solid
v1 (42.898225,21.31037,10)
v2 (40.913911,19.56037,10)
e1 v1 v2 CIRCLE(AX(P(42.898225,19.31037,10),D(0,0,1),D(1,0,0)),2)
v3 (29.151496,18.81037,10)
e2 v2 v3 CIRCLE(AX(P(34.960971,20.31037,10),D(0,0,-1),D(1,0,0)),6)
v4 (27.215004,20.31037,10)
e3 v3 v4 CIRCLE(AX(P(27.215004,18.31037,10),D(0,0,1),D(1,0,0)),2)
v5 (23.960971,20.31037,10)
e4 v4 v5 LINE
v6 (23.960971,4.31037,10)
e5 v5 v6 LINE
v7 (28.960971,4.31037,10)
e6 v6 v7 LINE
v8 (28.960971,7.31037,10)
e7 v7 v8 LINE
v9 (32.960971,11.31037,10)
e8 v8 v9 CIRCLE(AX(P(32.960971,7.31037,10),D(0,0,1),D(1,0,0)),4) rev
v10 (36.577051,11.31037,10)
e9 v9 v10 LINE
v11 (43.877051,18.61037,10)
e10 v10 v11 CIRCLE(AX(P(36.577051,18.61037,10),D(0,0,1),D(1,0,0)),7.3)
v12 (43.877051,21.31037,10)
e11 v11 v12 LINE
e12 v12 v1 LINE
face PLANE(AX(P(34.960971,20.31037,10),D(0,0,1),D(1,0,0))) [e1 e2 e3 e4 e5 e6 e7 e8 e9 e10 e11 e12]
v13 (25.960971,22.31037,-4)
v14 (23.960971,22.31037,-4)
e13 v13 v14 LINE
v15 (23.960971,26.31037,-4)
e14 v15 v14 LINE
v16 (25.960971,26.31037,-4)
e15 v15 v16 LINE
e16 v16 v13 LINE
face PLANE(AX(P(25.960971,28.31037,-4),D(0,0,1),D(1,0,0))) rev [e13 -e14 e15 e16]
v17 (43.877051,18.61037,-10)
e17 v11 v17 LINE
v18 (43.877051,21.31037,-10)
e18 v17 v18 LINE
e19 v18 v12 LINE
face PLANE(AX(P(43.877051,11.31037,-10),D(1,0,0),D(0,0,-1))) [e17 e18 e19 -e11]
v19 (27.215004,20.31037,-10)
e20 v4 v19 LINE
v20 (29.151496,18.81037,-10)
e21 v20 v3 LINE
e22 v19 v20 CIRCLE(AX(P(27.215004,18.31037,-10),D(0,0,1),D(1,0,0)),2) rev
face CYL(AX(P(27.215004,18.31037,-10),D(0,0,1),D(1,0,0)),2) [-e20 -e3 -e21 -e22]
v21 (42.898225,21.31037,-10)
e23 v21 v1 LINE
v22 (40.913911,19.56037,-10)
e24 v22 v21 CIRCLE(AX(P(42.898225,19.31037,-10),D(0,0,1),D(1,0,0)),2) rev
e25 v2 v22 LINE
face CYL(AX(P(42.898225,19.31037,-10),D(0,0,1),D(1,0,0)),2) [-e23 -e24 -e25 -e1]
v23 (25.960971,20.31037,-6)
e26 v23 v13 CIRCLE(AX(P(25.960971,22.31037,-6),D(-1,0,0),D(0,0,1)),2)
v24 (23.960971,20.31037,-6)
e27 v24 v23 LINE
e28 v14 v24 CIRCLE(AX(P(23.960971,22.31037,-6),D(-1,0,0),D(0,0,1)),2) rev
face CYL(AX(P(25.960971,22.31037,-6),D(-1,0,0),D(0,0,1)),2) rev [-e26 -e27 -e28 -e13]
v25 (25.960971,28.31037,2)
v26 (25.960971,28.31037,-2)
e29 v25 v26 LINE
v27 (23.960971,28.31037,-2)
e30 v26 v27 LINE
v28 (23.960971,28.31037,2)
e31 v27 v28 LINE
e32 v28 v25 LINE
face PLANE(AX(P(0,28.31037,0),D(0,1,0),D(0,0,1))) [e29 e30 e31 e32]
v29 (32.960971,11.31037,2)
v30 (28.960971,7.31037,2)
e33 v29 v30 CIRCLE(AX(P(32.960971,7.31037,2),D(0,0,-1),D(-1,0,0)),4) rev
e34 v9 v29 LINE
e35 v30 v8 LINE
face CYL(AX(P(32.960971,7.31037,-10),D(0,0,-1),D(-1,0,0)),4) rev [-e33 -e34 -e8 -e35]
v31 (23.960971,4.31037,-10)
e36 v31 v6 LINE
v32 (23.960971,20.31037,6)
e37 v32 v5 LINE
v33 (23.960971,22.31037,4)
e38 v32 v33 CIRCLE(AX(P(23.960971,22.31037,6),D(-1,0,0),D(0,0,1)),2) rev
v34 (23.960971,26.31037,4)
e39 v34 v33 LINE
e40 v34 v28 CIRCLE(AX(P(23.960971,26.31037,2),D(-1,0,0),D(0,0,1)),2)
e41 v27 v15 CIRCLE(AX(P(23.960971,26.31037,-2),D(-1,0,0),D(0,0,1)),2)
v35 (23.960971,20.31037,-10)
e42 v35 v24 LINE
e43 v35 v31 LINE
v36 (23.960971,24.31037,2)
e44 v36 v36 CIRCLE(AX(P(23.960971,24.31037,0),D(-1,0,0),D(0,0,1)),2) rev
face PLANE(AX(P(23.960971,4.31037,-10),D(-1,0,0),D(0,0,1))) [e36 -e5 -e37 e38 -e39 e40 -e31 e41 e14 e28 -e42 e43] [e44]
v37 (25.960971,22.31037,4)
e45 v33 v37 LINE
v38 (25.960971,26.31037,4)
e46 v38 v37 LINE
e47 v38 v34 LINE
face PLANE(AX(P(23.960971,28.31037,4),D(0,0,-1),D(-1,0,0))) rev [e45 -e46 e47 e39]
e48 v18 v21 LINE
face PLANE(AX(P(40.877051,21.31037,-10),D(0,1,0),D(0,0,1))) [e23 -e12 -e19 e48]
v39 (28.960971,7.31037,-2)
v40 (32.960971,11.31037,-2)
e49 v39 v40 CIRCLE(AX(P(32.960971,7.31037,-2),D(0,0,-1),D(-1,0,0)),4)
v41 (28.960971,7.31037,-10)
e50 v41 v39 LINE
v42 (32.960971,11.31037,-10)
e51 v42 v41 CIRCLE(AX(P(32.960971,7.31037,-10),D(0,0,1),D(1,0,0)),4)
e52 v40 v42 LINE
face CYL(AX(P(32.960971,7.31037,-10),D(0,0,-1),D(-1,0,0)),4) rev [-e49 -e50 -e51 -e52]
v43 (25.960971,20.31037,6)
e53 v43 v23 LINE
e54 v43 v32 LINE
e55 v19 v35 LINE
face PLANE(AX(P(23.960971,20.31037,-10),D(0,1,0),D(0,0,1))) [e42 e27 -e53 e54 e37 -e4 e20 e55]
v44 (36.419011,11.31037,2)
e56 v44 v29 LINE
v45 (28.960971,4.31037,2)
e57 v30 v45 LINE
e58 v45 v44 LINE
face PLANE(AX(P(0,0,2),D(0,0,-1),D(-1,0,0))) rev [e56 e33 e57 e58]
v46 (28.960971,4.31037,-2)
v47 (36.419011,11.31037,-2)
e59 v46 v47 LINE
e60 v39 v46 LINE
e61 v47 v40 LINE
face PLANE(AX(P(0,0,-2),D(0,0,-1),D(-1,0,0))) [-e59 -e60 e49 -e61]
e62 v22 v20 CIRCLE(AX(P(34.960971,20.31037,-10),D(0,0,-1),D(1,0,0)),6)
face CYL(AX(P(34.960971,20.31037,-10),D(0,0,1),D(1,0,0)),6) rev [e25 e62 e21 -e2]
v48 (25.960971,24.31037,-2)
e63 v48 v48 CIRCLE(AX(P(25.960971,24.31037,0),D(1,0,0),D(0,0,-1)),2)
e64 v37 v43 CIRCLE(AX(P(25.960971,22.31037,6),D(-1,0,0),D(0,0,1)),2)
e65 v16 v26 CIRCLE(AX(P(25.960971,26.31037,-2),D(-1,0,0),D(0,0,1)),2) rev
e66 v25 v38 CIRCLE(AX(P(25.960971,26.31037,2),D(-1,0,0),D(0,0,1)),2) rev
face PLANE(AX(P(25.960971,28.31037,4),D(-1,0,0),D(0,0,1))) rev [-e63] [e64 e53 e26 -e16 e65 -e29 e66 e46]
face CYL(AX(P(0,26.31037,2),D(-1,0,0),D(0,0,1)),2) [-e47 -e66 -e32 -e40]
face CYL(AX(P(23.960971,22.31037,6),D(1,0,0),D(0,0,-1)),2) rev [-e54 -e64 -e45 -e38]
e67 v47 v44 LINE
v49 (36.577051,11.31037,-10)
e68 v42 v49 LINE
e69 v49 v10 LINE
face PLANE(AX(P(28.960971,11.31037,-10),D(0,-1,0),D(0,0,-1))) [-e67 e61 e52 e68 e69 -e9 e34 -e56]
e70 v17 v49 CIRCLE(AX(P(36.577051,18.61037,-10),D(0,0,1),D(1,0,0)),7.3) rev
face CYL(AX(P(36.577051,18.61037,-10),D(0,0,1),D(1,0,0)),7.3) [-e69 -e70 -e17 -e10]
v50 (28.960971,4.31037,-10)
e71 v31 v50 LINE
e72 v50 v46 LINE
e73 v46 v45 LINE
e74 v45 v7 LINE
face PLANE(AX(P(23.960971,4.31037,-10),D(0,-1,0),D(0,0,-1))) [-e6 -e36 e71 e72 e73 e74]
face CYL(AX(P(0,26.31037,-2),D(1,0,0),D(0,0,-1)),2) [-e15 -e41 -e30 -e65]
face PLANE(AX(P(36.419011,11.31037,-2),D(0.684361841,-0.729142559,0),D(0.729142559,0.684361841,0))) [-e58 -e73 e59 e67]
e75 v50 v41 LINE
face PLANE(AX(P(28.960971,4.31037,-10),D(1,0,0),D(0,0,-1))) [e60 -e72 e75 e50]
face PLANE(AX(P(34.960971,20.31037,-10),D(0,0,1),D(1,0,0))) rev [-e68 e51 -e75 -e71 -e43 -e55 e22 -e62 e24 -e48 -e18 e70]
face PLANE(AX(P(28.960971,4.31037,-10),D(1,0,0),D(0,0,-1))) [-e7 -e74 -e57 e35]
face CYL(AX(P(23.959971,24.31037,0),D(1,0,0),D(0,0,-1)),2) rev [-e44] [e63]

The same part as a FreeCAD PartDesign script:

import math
import FreeCAD as App
import Part
import Sketcher
from FreeCAD import Vector
Q = App.Units.Quantity


def edges_at(feature, points):
    """Names of the edges that pass closest to the given points."""
    edges = feature.Shape.Edges
    near = lambda p: min(range(len(edges)), key=lambda i: edges[i].distToShape(Part.Vertex(*p))[0])
    return sorted({f"Edge{near(p) + 1}" for p in points})

doc = App.newDocument("Part")
body = doc.addObject("PartDesign::Body", "Body")

sketch1 = doc.addObject("Sketcher::SketchObject", "Sketch")
body.addObject(sketch1)
sketch1.AttachmentSupport = (doc.XY_Plane, [""])
sketch1.MapMode = "FlatFace"
sketch1.addGeometry(Part.LineSegment(Vector(24, 20.3, 0), Vector(24, 4.3, 0)), False)
sketch1.addGeometry(Part.LineSegment(Vector(24, 4.3, 0), Vector(29, 4.3, 0)), False)
sketch1.addGeometry(Part.LineSegment(Vector(29, 4.3, 0), Vector(29, 11.3, 0)), False)
sketch1.addGeometry(Part.LineSegment(Vector(29, 11.3, 0), Vector(43.9, 11.3, 0)), False)
sketch1.addGeometry(Part.LineSegment(Vector(43.9, 11.3, 0), Vector(43.9, 21.3, 0)), False)
sketch1.addGeometry(Part.LineSegment(Vector(43.9, 21.3, 0), Vector(40.9, 21.3, 0)), False)
sketch1.addGeometry(Part.ArcOfCircle(Part.Circle(Vector(35, 20.3, 0), Vector(0, 0, 1), 6), math.radians(-180), math.radians(10)), False)
sketch1.addGeometry(Part.LineSegment(Vector(29, 20.3, 0), Vector(24, 20.3, 0)), False)
sketch1.addConstraint(Sketcher.Constraint("Coincident", 0, 2, 1, 1))
sketch1.addConstraint(Sketcher.Constraint("Coincident", 1, 2, 2, 1))
sketch1.addConstraint(Sketcher.Constraint("Coincident", 2, 2, 3, 1))
sketch1.addConstraint(Sketcher.Constraint("Coincident", 3, 2, 4, 1))
sketch1.addConstraint(Sketcher.Constraint("Coincident", 4, 2, 5, 1))
sketch1.addConstraint(Sketcher.Constraint("Coincident", 5, 2, 6, 2))
sketch1.addConstraint(Sketcher.Constraint("Coincident", 6, 1, 7, 1))
sketch1.addConstraint(Sketcher.Constraint("Coincident", 7, 2, 0, 1))
sketch1.addConstraint(Sketcher.Constraint("Vertical", 0))
sketch1.addConstraint(Sketcher.Constraint("Horizontal", 1))
sketch1.addConstraint(Sketcher.Constraint("Vertical", 2))
sketch1.addConstraint(Sketcher.Constraint("Horizontal", 3))
sketch1.addConstraint(Sketcher.Constraint("Vertical", 4))
sketch1.addConstraint(Sketcher.Constraint("Horizontal", 5))
sketch1.addConstraint(Sketcher.Constraint("Horizontal", 7))
sketch1.addConstraint(Sketcher.Constraint("Vertical", 2, 2, 6, 1))
sketch1.addConstraint(Sketcher.Constraint("Radius", 6, Q("6 mm")))
sketch1.addConstraint(Sketcher.Constraint("DistanceX", 1, 1, 1, 2, Q("5 mm")))
sketch1.addConstraint(Sketcher.Constraint("DistanceX", 5, 2, 5, 1, Q("3 mm")))
sketch1.addConstraint(Sketcher.Constraint("DistanceY", 0, 2, 0, 1, Q("16 mm")))
sketch1.addConstraint(Sketcher.Constraint("DistanceY", 2, 1, 2, 2, Q("7 mm")))
sketch1.addConstraint(Sketcher.Constraint("DistanceY", 4, 1, 4, 2, Q("10 mm")))
sketch1.addConstraint(Sketcher.Constraint("DistanceY", 0, 2, 6, 3, Q("16 mm")))
sketch1.addConstraint(Sketcher.Constraint("DistanceX", -1, 1, 6, 3, Q("34.960971 mm")))
sketch1.addConstraint(Sketcher.Constraint("DistanceY", -1, 1, 6, 3, Q("20.31037 mm")))
pad1 = doc.addObject("PartDesign::Pad", "Pad")
body.addObject(pad1)
pad1.Profile = sketch1
pad1.Type = "TwoLengths"
pad1.Length = 10
pad1.Length2 = 10

sketch2 = doc.addObject("Sketcher::SketchObject", "Sketch001")
body.addObject(sketch2)
sketch2.AttachmentSupport = (doc.XY_Plane, [""])
sketch2.MapMode = "FlatFace"
sketch2.addGeometry(Part.LineSegment(Vector(29, 11, 0), Vector(29, 4, 0)), False)
sketch2.addGeometry(Part.LineSegment(Vector(29, 4, 0), Vector(36, 11, 0)), False)
sketch2.addGeometry(Part.LineSegment(Vector(36, 11, 0), Vector(29, 11, 0)), False)
sketch2.addConstraint(Sketcher.Constraint("Coincident", 0, 2, 1, 1))
sketch2.addConstraint(Sketcher.Constraint("Coincident", 1, 2, 2, 1))
sketch2.addConstraint(Sketcher.Constraint("Coincident", 2, 2, 0, 1))
sketch2.addConstraint(Sketcher.Constraint("Vertical", 0))
sketch2.addConstraint(Sketcher.Constraint("Horizontal", 2))
sketch2.addConstraint(Sketcher.Constraint("DistanceY", 0, 2, 0, 1, Q("7 mm")))
sketch2.addConstraint(Sketcher.Constraint("DistanceX", 2, 2, 2, 1, Q("7.45804 mm")))
sketch2.addConstraint(Sketcher.Constraint("DistanceX", -1, 1, 0, 2, Q("28.960971 mm")))
sketch2.addConstraint(Sketcher.Constraint("DistanceY", -1, 1, 0, 2, Q("4.31037 mm")))
pad2 = doc.addObject("PartDesign::Pad", "Pad001")
body.addObject(pad2)
pad2.Profile = sketch2
pad2.Type = "TwoLengths"
pad2.Length = 2
pad2.Length2 = 2
doc.recompute()

fillet = doc.addObject("PartDesign::Fillet", "Fillet")
body.addObject(fillet)
fillet.Base = (pad2, edges_at(pad2, [(28.961, 11.31, -6), (28.961, 11.31, 6)]))
fillet.Radius = 4
doc.recompute()

fillet2 = doc.addObject("PartDesign::Fillet", "Fillet001")
body.addObject(fillet2)
fillet2.Base = (fillet, edges_at(fillet, [(43.877, 11.31, 0)]))
fillet2.Radius = 7.3
doc.recompute()

fillet3 = doc.addObject("PartDesign::Fillet", "Fillet002")
body.addObject(fillet3)
fillet3.Base = (fillet2, edges_at(fillet2, [(28.961, 20.31, 0), (40.877, 21.31, 0)]))
fillet3.Radius = 2

sketch3 = doc.addObject("Sketcher::SketchObject", "Sketch002")
body.addObject(sketch3)
sketch3.AttachmentSupport = (doc.XZ_Plane, [""])
sketch3.MapMode = "FlatFace"
sketch3.AttachmentOffset = App.Placement(Vector(0, 0, -20.31037), App.Rotation())
sketch3.addGeometry(Part.LineSegment(Vector(24, -4, 0), Vector(24, 4, 0)), False)
sketch3.addGeometry(Part.LineSegment(Vector(24, 4, 0), Vector(26, 4, 0)), False)
sketch3.addGeometry(Part.LineSegment(Vector(26, 4, 0), Vector(26, -4, 0)), False)
sketch3.addGeometry(Part.LineSegment(Vector(26, -4, 0), Vector(24, -4, 0)), False)
sketch3.addConstraint(Sketcher.Constraint("Coincident", 0, 2, 1, 1))
sketch3.addConstraint(Sketcher.Constraint("Coincident", 1, 2, 2, 1))
sketch3.addConstraint(Sketcher.Constraint("Coincident", 2, 2, 3, 1))
sketch3.addConstraint(Sketcher.Constraint("Coincident", 3, 2, 0, 1))
sketch3.addConstraint(Sketcher.Constraint("Vertical", 0))
sketch3.addConstraint(Sketcher.Constraint("Horizontal", 1))
sketch3.addConstraint(Sketcher.Constraint("Vertical", 2))
sketch3.addConstraint(Sketcher.Constraint("Horizontal", 3))
sketch3.addConstraint(Sketcher.Constraint("DistanceX", 1, 1, 1, 2, Q("2 mm")))
sketch3.addConstraint(Sketcher.Constraint("DistanceY", 0, 1, 0, 2, Q("8 mm")))
sketch3.addConstraint(Sketcher.Constraint("DistanceY", -1, 1, 0, 2, Q("4 mm")))
sketch3.addConstraint(Sketcher.Constraint("DistanceX", -1, 1, 0, 2, Q("23.960971 mm")))
pad3 = doc.addObject("PartDesign::Pad", "Pad002")
body.addObject(pad3)
pad3.Profile = sketch3
pad3.Length = 8
pad3.Reversed = True
doc.recompute()

fillet4 = doc.addObject("PartDesign::Fillet", "Fillet003")
body.addObject(fillet4)
fillet4.Base = (pad3, edges_at(pad3, [
    (24.961, 20.31, -4),
    (24.961, 20.31, 4),
    (24.961, 28.31, -4),
    (24.961, 28.31, 4),
]))
fillet4.Radius = 2

sketch4 = doc.addObject("Sketcher::SketchObject", "Sketch003")
body.addObject(sketch4)
sketch4.AttachmentSupport = (doc.YZ_Plane, [""])
sketch4.MapMode = "FlatFace"
sketch4.AttachmentOffset = App.Placement(Vector(0, 0, 25.960971), App.Rotation())
sketch4.addGeometry(Part.Circle(Vector(24.3, 0, 0), Vector(0, 0, 1), 2), False)
sketch4.addConstraint(Sketcher.Constraint("PointOnObject", 0, 3, -1))
sketch4.addConstraint(Sketcher.Constraint("Diameter", 0, Q("4 mm")))
sketch4.addConstraint(Sketcher.Constraint("DistanceX", -1, 1, 0, 3, Q("24.31037 mm")))
pocket1 = doc.addObject("PartDesign::Pocket", "Pocket")
body.addObject(pocket1)
pocket1.Profile = sketch4
pocket1.Type = "UpToFirst"

doc.recompute()
